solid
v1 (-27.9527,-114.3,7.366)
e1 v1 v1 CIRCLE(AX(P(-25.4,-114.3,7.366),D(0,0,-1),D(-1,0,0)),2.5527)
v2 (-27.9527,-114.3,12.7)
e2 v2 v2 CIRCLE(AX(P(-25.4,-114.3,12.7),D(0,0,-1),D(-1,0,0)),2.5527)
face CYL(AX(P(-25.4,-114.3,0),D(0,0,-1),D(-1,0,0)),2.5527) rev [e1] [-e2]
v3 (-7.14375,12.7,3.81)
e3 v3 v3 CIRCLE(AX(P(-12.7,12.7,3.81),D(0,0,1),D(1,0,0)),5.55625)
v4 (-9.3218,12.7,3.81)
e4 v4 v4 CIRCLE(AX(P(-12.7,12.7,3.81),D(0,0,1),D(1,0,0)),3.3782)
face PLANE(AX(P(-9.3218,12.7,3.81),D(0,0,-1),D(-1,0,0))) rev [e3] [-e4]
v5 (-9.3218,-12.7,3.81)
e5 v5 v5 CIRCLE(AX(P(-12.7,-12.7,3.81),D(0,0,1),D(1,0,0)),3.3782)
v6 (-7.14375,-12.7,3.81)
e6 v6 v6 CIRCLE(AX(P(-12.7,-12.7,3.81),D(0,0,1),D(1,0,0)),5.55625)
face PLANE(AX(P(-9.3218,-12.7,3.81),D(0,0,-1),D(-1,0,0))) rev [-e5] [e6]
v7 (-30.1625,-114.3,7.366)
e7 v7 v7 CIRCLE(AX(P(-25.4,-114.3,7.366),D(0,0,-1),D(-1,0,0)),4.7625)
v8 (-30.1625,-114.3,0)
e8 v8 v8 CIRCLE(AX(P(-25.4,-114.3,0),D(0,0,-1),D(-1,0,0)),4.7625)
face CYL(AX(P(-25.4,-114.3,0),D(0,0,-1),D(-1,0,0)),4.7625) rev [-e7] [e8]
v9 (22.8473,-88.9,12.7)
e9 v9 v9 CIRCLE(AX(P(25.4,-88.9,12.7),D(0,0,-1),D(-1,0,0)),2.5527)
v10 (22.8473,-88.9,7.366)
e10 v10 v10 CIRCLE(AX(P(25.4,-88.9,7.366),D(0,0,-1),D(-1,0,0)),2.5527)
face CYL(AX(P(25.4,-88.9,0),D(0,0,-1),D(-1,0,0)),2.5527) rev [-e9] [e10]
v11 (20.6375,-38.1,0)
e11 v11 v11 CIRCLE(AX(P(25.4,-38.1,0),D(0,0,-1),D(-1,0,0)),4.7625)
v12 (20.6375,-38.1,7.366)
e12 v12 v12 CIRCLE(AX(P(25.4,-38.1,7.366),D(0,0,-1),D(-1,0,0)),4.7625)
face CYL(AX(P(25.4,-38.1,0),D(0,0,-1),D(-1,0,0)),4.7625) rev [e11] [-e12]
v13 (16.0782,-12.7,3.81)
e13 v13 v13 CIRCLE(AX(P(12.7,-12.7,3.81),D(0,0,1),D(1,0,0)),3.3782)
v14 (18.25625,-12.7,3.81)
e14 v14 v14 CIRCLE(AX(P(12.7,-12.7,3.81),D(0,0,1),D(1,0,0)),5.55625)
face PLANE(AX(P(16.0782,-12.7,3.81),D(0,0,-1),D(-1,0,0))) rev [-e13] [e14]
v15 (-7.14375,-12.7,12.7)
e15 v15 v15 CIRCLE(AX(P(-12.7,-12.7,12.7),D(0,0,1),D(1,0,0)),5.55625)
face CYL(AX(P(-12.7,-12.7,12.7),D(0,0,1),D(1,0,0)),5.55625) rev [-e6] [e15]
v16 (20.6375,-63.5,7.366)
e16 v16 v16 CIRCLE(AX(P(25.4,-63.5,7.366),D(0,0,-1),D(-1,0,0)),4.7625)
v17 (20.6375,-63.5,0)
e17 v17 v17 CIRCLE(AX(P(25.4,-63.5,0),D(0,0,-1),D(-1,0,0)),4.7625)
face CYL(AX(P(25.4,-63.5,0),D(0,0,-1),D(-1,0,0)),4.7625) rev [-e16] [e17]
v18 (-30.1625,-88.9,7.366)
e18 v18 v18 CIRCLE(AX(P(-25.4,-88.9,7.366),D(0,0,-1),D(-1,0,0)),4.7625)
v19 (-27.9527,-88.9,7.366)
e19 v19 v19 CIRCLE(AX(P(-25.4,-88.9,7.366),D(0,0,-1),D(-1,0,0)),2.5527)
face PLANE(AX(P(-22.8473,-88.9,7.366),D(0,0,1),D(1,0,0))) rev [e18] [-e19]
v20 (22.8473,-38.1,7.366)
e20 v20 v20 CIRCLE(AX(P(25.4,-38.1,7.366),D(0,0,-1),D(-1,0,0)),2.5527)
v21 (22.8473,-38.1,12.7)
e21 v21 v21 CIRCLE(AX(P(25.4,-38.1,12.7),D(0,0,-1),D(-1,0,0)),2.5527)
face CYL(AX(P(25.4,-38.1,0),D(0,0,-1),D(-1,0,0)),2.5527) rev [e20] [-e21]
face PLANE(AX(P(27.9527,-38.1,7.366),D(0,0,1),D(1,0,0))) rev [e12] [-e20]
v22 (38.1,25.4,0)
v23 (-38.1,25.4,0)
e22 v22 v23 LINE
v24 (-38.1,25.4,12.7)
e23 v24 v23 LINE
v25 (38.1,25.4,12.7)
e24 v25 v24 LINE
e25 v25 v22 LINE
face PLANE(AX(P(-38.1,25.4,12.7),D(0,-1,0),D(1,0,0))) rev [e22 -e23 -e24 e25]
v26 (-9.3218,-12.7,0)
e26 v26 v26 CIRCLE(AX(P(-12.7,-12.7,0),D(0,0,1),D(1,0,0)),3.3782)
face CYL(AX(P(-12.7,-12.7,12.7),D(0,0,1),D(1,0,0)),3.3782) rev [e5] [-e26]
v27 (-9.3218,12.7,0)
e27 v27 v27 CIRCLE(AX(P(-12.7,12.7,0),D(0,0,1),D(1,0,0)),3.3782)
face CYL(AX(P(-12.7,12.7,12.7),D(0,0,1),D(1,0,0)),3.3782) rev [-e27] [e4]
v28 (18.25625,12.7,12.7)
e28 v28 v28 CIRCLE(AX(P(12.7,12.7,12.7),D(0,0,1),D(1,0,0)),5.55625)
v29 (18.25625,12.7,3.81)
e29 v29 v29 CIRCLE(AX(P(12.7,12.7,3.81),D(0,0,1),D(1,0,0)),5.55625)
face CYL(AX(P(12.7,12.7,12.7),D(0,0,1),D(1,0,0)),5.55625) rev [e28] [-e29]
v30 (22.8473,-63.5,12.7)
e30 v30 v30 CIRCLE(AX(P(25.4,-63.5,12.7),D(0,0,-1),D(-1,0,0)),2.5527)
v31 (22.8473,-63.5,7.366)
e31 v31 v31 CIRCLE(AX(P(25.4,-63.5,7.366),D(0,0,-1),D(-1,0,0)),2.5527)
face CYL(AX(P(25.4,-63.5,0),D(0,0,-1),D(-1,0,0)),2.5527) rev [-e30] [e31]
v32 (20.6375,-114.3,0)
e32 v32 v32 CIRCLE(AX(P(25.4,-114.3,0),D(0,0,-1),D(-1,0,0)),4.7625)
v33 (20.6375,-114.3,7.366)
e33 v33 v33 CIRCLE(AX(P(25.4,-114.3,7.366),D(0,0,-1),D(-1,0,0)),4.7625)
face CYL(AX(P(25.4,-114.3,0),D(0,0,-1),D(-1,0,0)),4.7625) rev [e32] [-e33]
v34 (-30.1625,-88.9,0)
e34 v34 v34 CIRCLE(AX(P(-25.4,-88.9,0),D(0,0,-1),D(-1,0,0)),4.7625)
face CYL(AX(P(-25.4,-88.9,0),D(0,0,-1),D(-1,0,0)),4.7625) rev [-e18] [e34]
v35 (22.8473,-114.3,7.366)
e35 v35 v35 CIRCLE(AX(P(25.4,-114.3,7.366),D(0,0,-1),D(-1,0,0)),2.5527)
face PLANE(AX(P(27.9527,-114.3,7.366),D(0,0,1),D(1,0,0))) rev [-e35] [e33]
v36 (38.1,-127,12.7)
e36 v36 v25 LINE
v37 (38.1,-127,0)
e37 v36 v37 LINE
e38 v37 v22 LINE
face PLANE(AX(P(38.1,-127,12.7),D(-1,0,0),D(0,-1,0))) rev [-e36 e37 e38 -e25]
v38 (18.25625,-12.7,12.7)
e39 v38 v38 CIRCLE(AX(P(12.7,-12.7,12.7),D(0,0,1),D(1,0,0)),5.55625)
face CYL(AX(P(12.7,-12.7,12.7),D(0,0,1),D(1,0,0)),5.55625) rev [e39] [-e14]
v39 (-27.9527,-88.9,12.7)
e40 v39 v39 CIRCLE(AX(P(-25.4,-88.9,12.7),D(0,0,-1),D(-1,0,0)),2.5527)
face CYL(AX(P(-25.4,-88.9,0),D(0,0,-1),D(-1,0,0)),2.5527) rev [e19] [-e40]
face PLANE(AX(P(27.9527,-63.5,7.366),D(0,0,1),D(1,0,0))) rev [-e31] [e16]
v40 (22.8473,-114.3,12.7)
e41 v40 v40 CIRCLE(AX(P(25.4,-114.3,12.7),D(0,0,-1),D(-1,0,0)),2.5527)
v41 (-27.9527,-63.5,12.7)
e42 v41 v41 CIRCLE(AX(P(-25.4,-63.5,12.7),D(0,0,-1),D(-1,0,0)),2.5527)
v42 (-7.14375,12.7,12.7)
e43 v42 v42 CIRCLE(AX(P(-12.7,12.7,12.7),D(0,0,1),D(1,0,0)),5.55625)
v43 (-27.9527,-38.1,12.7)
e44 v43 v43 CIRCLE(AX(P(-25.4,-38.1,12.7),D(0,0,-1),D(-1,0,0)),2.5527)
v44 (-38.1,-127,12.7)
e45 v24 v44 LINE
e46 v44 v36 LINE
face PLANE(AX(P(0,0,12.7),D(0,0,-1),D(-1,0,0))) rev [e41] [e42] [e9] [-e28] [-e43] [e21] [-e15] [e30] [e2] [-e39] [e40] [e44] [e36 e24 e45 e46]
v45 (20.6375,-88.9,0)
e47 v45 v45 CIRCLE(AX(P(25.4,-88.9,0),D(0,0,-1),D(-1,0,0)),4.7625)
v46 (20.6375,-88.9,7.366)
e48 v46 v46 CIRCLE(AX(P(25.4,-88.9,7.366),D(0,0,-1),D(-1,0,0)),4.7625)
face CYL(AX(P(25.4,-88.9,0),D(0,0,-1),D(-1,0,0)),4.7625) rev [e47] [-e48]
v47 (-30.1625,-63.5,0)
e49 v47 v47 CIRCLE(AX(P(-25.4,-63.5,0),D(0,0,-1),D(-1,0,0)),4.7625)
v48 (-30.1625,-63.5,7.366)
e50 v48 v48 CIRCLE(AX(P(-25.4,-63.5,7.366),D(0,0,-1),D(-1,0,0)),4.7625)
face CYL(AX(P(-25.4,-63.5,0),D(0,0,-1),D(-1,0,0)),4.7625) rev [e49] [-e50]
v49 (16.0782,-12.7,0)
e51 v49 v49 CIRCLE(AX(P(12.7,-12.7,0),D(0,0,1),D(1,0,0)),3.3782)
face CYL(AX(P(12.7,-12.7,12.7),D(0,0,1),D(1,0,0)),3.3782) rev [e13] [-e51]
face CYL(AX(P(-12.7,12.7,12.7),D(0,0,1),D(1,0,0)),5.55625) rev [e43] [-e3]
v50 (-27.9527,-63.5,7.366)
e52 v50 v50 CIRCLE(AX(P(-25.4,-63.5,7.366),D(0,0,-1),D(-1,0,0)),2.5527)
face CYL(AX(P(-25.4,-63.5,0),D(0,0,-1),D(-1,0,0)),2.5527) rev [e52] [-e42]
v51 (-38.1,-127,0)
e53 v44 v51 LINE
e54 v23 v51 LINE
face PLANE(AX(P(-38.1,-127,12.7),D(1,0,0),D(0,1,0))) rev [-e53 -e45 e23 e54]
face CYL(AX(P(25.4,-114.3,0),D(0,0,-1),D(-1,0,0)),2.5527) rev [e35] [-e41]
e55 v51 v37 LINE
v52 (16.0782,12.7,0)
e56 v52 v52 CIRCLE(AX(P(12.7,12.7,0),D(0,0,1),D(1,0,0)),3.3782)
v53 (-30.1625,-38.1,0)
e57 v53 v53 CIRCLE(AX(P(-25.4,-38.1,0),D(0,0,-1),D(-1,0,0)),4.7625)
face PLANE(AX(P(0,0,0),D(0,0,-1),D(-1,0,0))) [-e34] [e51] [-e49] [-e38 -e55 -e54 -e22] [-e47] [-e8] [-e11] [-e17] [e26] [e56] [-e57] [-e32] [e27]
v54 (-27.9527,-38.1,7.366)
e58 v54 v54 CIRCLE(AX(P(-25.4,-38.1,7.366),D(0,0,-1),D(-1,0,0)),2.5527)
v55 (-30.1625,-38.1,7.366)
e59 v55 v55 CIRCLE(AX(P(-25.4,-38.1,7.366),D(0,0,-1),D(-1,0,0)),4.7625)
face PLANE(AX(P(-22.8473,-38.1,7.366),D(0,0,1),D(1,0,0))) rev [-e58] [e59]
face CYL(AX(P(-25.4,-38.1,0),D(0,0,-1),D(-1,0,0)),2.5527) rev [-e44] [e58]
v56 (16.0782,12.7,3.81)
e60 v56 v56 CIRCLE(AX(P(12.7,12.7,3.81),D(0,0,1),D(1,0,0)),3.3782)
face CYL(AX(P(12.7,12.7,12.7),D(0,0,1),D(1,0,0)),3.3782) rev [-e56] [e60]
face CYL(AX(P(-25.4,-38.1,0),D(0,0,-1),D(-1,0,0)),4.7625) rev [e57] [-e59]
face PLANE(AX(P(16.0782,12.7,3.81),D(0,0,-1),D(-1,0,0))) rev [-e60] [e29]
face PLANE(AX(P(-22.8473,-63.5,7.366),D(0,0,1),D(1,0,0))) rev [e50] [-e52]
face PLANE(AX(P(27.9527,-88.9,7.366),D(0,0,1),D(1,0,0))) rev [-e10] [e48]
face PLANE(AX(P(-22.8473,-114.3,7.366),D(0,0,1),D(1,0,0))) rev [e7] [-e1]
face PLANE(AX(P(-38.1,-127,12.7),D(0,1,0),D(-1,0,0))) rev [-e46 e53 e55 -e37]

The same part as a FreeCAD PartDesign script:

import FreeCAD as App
import Part
import Sketcher
from FreeCAD import Vector
Q = App.Units.Quantity

doc = App.newDocument("Part")
body = doc.addObject("PartDesign::Body", "Body")

sketch1 = body.newObject("Sketcher::SketchObject", "Sketch")
sketch1.AttachmentSupport = (doc.getObject("XY_Plane"), [""])
sketch1.MapMode = "FlatFace"
sketch1.addGeometry(Part.LineSegment(Vector(-38, 25, 0), Vector(-38, -127, 0)), False)
sketch1.addGeometry(Part.LineSegment(Vector(-38, -127, 0), Vector(38, -127, 0)), False)
sketch1.addGeometry(Part.LineSegment(Vector(38, -127, 0), Vector(38, 25, 0)), False)
sketch1.addGeometry(Part.LineSegment(Vector(38, 25, 0), Vector(-38, 25, 0)), False)
sketch1.addConstraint(Sketcher.Constraint("Coincident", 0, 2, 1, 1))
sketch1.addConstraint(Sketcher.Constraint("Coincident", 1, 2, 2, 1))
sketch1.addConstraint(Sketcher.Constraint("Coincident", 2, 2, 3, 1))
sketch1.addConstraint(Sketcher.Constraint("Coincident", 3, 2, 0, 1))
sketch1.addConstraint(Sketcher.Constraint("Vertical", 0))
sketch1.addConstraint(Sketcher.Constraint("Horizontal", 1))
sketch1.addConstraint(Sketcher.Constraint("Vertical", 2))
sketch1.addConstraint(Sketcher.Constraint("Horizontal", 3))
sketch1.addConstraint(Sketcher.Constraint("DistanceX", 1, 1, 1, 2, Q("3 in")))
sketch1.addConstraint(Sketcher.Constraint("DistanceY", 0, 2, 0, 1, Q("6 in")))
sketch1.addConstraint(Sketcher.Constraint("DistanceY", 0, 2, -1, 1, Q("5 in")))
sketch1.addConstraint(Sketcher.Constraint("DistanceX", 0, 2, -1, 1, Q("1.5 in")))
pad1 = body.newObject("PartDesign::Pad", "Pad")
pad1.Profile = sketch1
pad1.Length = Q("0.5 in")

sketch2 = body.newObject("Sketcher::SketchObject", "Sketch001")
sketch2.AttachmentSupport = (doc.getObject("XY_Plane"), [""])
sketch2.MapMode = "FlatFace"
sketch2.AttachmentOffset = App.Placement(Vector(0, 0, 0.5 * 25.4), App.Rotation())
sketch2.addGeometry(Part.Circle(Vector(-12.7, 12.7, 0), Vector(0, 0, 1), 3.4), False)
sketch2.addGeometry(Part.Circle(Vector(-12.7, -12.7, 0), Vector(0, 0, 1), 3.4), False)
sketch2.addGeometry(Part.Circle(Vector(12.7, -12.7, 0), Vector(0, 0, 1), 3.4), False)
sketch2.addGeometry(Part.Circle(Vector(12.7, 12.7, 0), Vector(0, 0, 1), 3.4), False)
sketch2.addConstraint(Sketcher.Constraint("Equal", 0, 1))
sketch2.addConstraint(Sketcher.Constraint("Equal", 1, 2))
sketch2.addConstraint(Sketcher.Constraint("Equal", 2, 3))
sketch2.addConstraint(Sketcher.Constraint("Symmetric", 0, 3, 2, 3, -1, 1))
sketch2.addConstraint(Sketcher.Constraint("Symmetric", 1, 3, 3, 3, -1, 1))
sketch2.addConstraint(Sketcher.Constraint("Symmetric", 1, 3, 2, 3, -2))
sketch2.addConstraint(Sketcher.Constraint("Diameter", 0, Q("0.266 in")))
sketch2.addConstraint(Sketcher.Constraint("DistanceY", 1, 3, 0, 3, Q("1 in")))
sketch2.addConstraint(Sketcher.Constraint("DistanceX", 1, 3, 2, 3, Q("1 in")))
doc.recompute()
hole = body.newObject("PartDesign::Hole", "Hole")
hole.Profile = sketch2
hole.ThreadType = "None"
hole.Diameter = Q("0.266 in")
hole.DepthType = "ThroughAll"
hole.HoleCutType = "Counterbore"
hole.HoleCutDiameter = Q("0.4375 in")
hole.HoleCutDepth = Q("0.35 in")

sketch3 = body.newObject("Sketcher::SketchObject", "Sketch002")
sketch3.AttachmentSupport = (doc.getObject("XY_Plane"), [""])
sketch3.MapMode = "FlatFace"
sketch3.addGeometry(Part.Circle(Vector(25.4, -114.3, 0), Vector(0, 0, 1), 2.6), False)
sketch3.addGeometry(Part.Circle(Vector(-25.4, -114.3, 0), Vector(0, 0, 1), 2.6), False)
sketch3.addGeometry(Part.Circle(Vector(-25.4, -88.9, 0), Vector(0, 0, 1), 2.6), False)
sketch3.addGeometry(Part.Circle(Vector(-25.4, -63.5, 0), Vector(0, 0, 1), 2.6), False)
sketch3.addGeometry(Part.Circle(Vector(-25.4, -38.1, 0), Vector(0, 0, 1), 2.6), False)
sketch3.addGeometry(Part.Circle(Vector(25.4, -88.9, 0), Vector(0, 0, 1), 2.6), False)
sketch3.addGeometry(Part.Circle(Vector(25.4, -63.5, 0), Vector(0, 0, 1), 2.6), False)
sketch3.addGeometry(Part.Circle(Vector(25.4, -38.1, 0), Vector(0, 0, 1), 2.6), False)
sketch3.addConstraint(Sketcher.Constraint("Equal", 0, 1))
sketch3.addConstraint(Sketcher.Constraint("Equal", 1, 2))
sketch3.addConstraint(Sketcher.Constraint("Equal", 2, 3))
sketch3.addConstraint(Sketcher.Constraint("Equal", 3, 4))
sketch3.addConstraint(Sketcher.Constraint("Equal", 4, 5))
sketch3.addConstraint(Sketcher.Constraint("Equal", 5, 6))
sketch3.addConstraint(Sketcher.Constraint("Equal", 6, 7))
sketch3.addConstraint(Sketcher.Constraint("Symmetric", 0, 3, 1, 3, -2))
sketch3.addConstraint(Sketcher.Constraint("Symmetric", 2, 3, 5, 3, -2))
sketch3.addConstraint(Sketcher.Constraint("Symmetric", 3, 3, 6, 3, -2))
sketch3.addConstraint(Sketcher.Constraint("Symmetric", 4, 3, 7, 3, -2))
sketch3.addConstraint(Sketcher.Constraint("Vertical", 1, 3, 2, 3))
sketch3.addConstraint(Sketcher.Constraint("Vertical", 2, 3, 3, 3))
sketch3.addConstraint(Sketcher.Constraint("Vertical", 3, 3, 4, 3))
sketch3.addConstraint(Sketcher.Constraint("Diameter", 0, Q("0.201 in")))
sketch3.addConstraint(Sketcher.Constraint("DistanceX", -1, 1, 0, 3, Q("1 in")))
sketch3.addConstraint(Sketcher.Constraint("DistanceY", 1, 3, 2, 3, Q("1 in")))
sketch3.addConstraint(Sketcher.Constraint("DistanceY", 2, 3, 3, 3, Q("1 in")))
sketch3.addConstraint(Sketcher.Constraint("DistanceY", 3, 3, 4, 3, Q("1 in")))
sketch3.addConstraint(Sketcher.Constraint("DistanceY", 0, 3, -1, 1, Q("4.5 in")))
doc.recompute()
hole2 = body.newObject("PartDesign::Hole", "Hole001")
hole2.Profile = sketch3
hole2.ThreadType = "None"
hole2.Diameter = Q("0.201 in")
hole2.DepthType = "ThroughAll"
hole2.HoleCutType = "Counterbore"
hole2.HoleCutDiameter = Q("0.375 in")
hole2.HoleCutDepth = Q("0.29 in")
hole2.Reversed = True

doc.recompute()
